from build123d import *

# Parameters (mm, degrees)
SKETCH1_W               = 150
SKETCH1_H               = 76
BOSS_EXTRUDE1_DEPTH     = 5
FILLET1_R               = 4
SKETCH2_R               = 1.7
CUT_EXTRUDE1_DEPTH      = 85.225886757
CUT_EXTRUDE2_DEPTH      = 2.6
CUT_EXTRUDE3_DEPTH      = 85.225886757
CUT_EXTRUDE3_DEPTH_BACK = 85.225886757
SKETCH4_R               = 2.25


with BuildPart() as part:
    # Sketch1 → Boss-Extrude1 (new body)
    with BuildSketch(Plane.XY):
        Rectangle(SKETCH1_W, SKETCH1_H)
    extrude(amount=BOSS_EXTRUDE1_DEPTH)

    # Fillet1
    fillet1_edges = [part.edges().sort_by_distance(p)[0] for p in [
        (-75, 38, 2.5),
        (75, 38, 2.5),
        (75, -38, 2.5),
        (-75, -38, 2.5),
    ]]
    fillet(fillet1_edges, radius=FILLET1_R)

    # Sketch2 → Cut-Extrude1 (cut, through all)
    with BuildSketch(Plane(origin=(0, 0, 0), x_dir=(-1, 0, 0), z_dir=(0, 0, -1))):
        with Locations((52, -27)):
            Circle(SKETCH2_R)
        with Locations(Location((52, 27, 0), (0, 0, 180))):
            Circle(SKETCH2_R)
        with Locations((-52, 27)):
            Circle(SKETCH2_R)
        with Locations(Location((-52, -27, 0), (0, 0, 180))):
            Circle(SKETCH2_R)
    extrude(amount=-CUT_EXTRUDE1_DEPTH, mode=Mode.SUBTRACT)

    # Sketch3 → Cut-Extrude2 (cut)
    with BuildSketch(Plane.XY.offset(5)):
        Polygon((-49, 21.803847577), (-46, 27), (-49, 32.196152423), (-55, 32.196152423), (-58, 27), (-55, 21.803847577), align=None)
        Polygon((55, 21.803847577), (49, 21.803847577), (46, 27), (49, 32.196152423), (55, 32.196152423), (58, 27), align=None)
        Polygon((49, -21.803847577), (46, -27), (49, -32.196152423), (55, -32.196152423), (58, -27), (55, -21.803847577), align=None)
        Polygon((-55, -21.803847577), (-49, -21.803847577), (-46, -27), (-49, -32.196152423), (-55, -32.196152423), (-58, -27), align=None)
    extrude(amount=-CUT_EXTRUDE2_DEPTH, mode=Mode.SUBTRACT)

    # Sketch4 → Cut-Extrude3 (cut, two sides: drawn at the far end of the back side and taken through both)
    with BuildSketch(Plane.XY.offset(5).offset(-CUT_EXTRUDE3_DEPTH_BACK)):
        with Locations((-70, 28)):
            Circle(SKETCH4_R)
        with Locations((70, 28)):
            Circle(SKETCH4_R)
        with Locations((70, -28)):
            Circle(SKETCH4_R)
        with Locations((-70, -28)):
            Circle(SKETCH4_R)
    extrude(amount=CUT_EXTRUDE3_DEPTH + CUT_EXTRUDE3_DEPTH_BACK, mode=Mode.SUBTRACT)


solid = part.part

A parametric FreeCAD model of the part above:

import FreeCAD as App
import Part
import Sketcher
Q = App.Units.Quantity


def edges_at(feature, points):
    """Names of the edges that pass closest to the given points."""
    edges = feature.Shape.Edges
    near = lambda p: min(range(len(edges)), key=lambda i: edges[i].distToShape(Part.Vertex(*p))[0])
    return sorted({f"Edge{near(p) + 1}" for p in points})


def add_polygon(sketch, points):
    """Adds a closed chain of lines whose ends are joined by coincident constraints."""
    first, n = sketch.GeometryCount, len(points)
    for a, b in zip(points, points[1:] + points[:1]):
        sketch.addGeometry(Part.LineSegment(App.Vector(*a, 0), App.Vector(*b, 0)), False)
    for i in range(n):
        sketch.addConstraint(Sketcher.Constraint("Coincident", first + i, 2, first + (i + 1) % n, 1))

doc = App.newDocument("Part")
body = doc.addObject("PartDesign::Body", "Body")

sketch1 = doc.addObject("Sketcher::SketchObject", "Sketch")
body.addObject(sketch1)
sketch1.AttachmentSupport = (doc.XY_Plane, [""])
sketch1.MapMode = "FlatFace"
add_polygon(sketch1, [(-75, 38), (-75, -38), (75, -38), (75, 38)])
sketch1.addConstraint([
    Sketcher.Constraint("Vertical", 0),
    Sketcher.Constraint("Horizontal", 1),
    Sketcher.Constraint("Vertical", 2),
    Sketcher.Constraint("Horizontal", 3),
    Sketcher.Constraint("Symmetric", 0, 2, 2, 2, -1, 1),
    Sketcher.Constraint("DistanceX", 1, 1, 1, 2, 150.0),
    Sketcher.Constraint("DistanceY", 0, 2, 0, 1, 76.0),
])
pad1 = doc.addObject("PartDesign::Pad", "Pad")
body.addObject(pad1)
pad1.Profile = sketch1
pad1.Length = 5
doc.recompute()

fillet = doc.addObject("PartDesign::Fillet", "Fillet")
body.addObject(fillet)
fillet.Base = (pad1, edges_at(pad1, [
    (-75, 38, 2.5),
    (75, 38, 2.5),
    (75, -38, 2.5),
    (-75, -38, 2.5),
]))
fillet.Radius = 4

sketch2 = doc.addObject("Sketcher::SketchObject", "Sketch001")
body.addObject(sketch2)
sketch2.AttachmentSupport = (doc.XY_Plane, [""])
sketch2.MapMode = "FlatFace"
sketch2.addGeometry([
    Part.Circle(App.Vector(-52, -27, 0), App.Vector(0, 0, 1), 1.7),
    Part.Circle(App.Vector(-52, 27, 0), App.Vector(0, 0, 1), 1.7),
    Part.Circle(App.Vector(52, 27, 0), App.Vector(0, 0, 1), 1.7),
    Part.Circle(App.Vector(52, -27, 0), App.Vector(0, 0, 1), 1.7),
], False)
sketch2.addConstraint([
    Sketcher.Constraint("Equal", 0, 1),
    Sketcher.Constraint("Equal", 1, 2),
    Sketcher.Constraint("Equal", 2, 3),
    Sketcher.Constraint("Symmetric", 0, 3, 2, 3, -1, 1),
    Sketcher.Constraint("Symmetric", 1, 3, 3, 3, -1, 1),
    Sketcher.Constraint("Symmetric", 1, 3, 2, 3, -2),
    Sketcher.Constraint("Diameter", 0, 3.4),
    Sketcher.Constraint("DistanceX", 0, 3, -1, 1, 52.0),
    Sketcher.Constraint("DistanceY", 0, 3, -1, 1, 27.0),
])
pocket1 = doc.addObject("PartDesign::Pocket", "Pocket")
body.addObject(pocket1)
pocket1.Profile = sketch2
pocket1.Type = "ThroughAll"
pocket1.Reversed = True

sketch3 = doc.addObject("Sketcher::SketchObject", "Sketch002")
body.addObject(sketch3)
sketch3.AttachmentSupport = (doc.XY_Plane, [""])
sketch3.MapMode = "FlatFace"
sketch3.AttachmentOffset = App.Placement(App.Vector(0, 0, 5), App.Rotation())
add_polygon(sketch3, [(-49, 22), (-46, 27), (-49, 32), (-55, 32), (-58, 27), (-55, 22)])
add_polygon(sketch3, [(49, 22), (55, 22), (58, 27), (55, 32), (49, 32), (46, 27)])
add_polygon(sketch3, [(49, -22), (46, -27), (49, -32), (55, -32), (58, -27), (55, -22)])
add_polygon(sketch3, [(-49, -22), (-55, -22), (-58, -27), (-55, -32), (-49, -32), (-46, -27)])
sketch3.addConstraint([
    Sketcher.Constraint("Horizontal", 2),
    Sketcher.Constraint("Horizontal", 5),
    Sketcher.Constraint("Horizontal", 6),
    Sketcher.Constraint("Horizontal", 9),
    Sketcher.Constraint("Horizontal", 14),
    Sketcher.Constraint("Horizontal", 17),
    Sketcher.Constraint("Horizontal", 18),
    Sketcher.Constraint("Horizontal", 21),
    Sketcher.Constraint("Symmetric", 0, 2, 12, 2, -1, 1),
    Sketcher.Constraint("Symmetric", 1, 2, 13, 2, -1, 1),
    Sketcher.Constraint("Symmetric", 3, 2, 15, 2, -1, 1),
    Sketcher.Constraint("Symmetric", 4, 2, 16, 2, -1, 1),
    Sketcher.Constraint("Symmetric", 6, 2, 18, 2, -1, 1),
    Sketcher.Constraint("Symmetric", 7, 2, 19, 2, -1, 1),
    Sketcher.Constraint("Symmetric", 8, 2, 20, 2, -1, 1),
    Sketcher.Constraint("Symmetric", 10, 2, 22, 2, -1, 1),
    Sketcher.Constraint("Symmetric", 4, 2, 6, 2, -2),
    Sketcher.Constraint("Symmetric", 3, 2, 7, 2, -2),
    Sketcher.Constraint("Symmetric", 2, 2, 8, 2, -2),
    Sketcher.Constraint("Symmetric", 0, 2, 10, 2, -2),
    Sketcher.Constraint("Parallel", 0, 3),
    Sketcher.Constraint("Parallel", 1, 4),
    Sketcher.Constraint("Parallel", 3, 7),
    Sketcher.Constraint("Parallel", 7, 10),
    Sketcher.Constraint("Parallel", 8, 11),
    Sketcher.Constraint("Parallel", 10, 12),
    Sketcher.Constraint("Parallel", 12, 15),
    Sketcher.Constraint("Parallel", 19, 22),
    Sketcher.Constraint("Parallel", 20, 23),
    Sketcher.Constraint("Horizontal", 0, 2, 3, 2),
    Sketcher.Constraint("Vertical", 2, 2, 4, 2),
    Sketcher.Constraint("DistanceX", 2, 2, 2, 1, 6.0),
    Sketcher.Constraint("Angle", 0, Q("60 deg")),
    Sketcher.Constraint("Distance", 0, 6.0),
    Sketcher.Constraint("DistanceX", 0, 2, -1, 1, 46.0),
    Sketcher.Constraint("DistanceY", -1, 1, 0, 2, 27.0),
])
pocket2 = doc.addObject("PartDesign::Pocket", "Pocket001")
body.addObject(pocket2)
pocket2.Profile = sketch3
pocket2.Length = 2.6

sketch4 = doc.addObject("Sketcher::SketchObject", "Sketch003")
body.addObject(sketch4)
sketch4.AttachmentSupport = (doc.XY_Plane, [""])
sketch4.MapMode = "FlatFace"
sketch4.AttachmentOffset = App.Placement(App.Vector(0, 0, 5), App.Rotation())
sketch4.addGeometry([
    Part.Circle(App.Vector(-70, 28, 0), App.Vector(0, 0, 1), 2.2),
    Part.Circle(App.Vector(70, 28, 0), App.Vector(0, 0, 1), 2.2),
    Part.Circle(App.Vector(70, -28, 0), App.Vector(0, 0, 1), 2.2),
    Part.Circle(App.Vector(-70, -28, 0), App.Vector(0, 0, 1), 2.2),
], False)
sketch4.addConstraint([
    Sketcher.Constraint("Equal", 0, 1),
    Sketcher.Constraint("Equal", 1, 2),
    Sketcher.Constraint("Equal", 2, 3),
    Sketcher.Constraint("Symmetric", 0, 3, 2, 3, -1, 1),
    Sketcher.Constraint("Symmetric", 1, 3, 3, 3, -1, 1),
    Sketcher.Constraint("Symmetric", 0, 3, 1, 3, -2),
    Sketcher.Constraint("Diameter", 0, 4.5),
    Sketcher.Constraint("DistanceX", 0, 3, -1, 1, 70.0),
    Sketcher.Constraint("DistanceY", -1, 1, 0, 3, 28.0),
])
pocket3 = doc.addObject("PartDesign::Pocket", "Pocket002")
body.addObject(pocket3)
pocket3.Profile = sketch4
pocket3.Type = "ThroughAll"
pocket3.Midplane = True

doc.recompute()
